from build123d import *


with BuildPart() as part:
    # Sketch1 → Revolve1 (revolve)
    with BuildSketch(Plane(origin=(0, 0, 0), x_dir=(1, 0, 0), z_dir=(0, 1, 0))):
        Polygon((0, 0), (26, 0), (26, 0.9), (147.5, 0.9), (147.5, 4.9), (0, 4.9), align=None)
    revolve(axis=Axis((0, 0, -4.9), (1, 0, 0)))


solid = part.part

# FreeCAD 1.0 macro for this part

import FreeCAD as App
import Part
import Sketcher

V = App.Vector
Q = App.Units.Quantity


def add_polygon(sketch, points):
    """Adds a closed chain of lines whose ends are joined by coincident constraints."""
    first, n = sketch.GeometryCount, len(points)
    for a, b in zip(points, points[1:] + points[:1]):
        sketch.addGeometry(Part.LineSegment(App.Vector(*a, 0), App.Vector(*b, 0)), False)
    for i in range(n):
        sketch.addConstraint(Sketcher.Constraint("Coincident", first + i, 2, first + (i + 1) % n, 1))

doc = App.newDocument("Part")
body = doc.addObject("PartDesign::Body", "Body")

# Sketch on XZ plane
sketch1 = doc.addObject("Sketcher::SketchObject", "Sketch")
body.addObject(sketch1)
sketch1.AttachmentSupport = (doc.XZ_Plane, [""])
sketch1.MapMode = "FlatFace"
add_polygon(sketch1, [(0, 0), (26, 0), (26, -0.9), (147.5, -0.9), (147.5, -4.9), (0, -4.9)])  # lines 0-5
sketch1.addGeometry(Part.LineSegment(V(0, -4.9, 0), V(147.5, -4.9, 0)), True)  # axis
sketch1.addConstraint([
    Sketcher.Constraint("Horizontal", 0),
    Sketcher.Constraint("Vertical", 1),
    Sketcher.Constraint("Horizontal", 2),
    Sketcher.Constraint("Vertical", 3),
    Sketcher.Constraint("Horizontal", 4),
    Sketcher.Constraint("Vertical", 5),
    Sketcher.Constraint("Horizontal", 6),
    Sketcher.Constraint("Coincident", 5, 2, -1, 1),
    Sketcher.Constraint("Coincident", 6, 1, 4, 2),
    Sketcher.Constraint("Vertical", 2, 2, 6, 2),
    Sketcher.Constraint("DistanceX", 0, 1, 0, 2, Q("26 mm")),
    Sketcher.Constraint("DistanceY", 3, 2, 3, 1, Q("4 mm")),
    Sketcher.Constraint("DistanceX", 2, 1, 2, 2, Q("121.5 mm")),
    Sketcher.Constraint("DistanceY", 1, 2, 1, 1, Q("0.9 mm")),
])
revolution = doc.addObject("PartDesign::Revolution", "Revolution")
body.addObject(revolution)
revolution.Profile = sketch1
revolution.ReferenceAxis = (sketch1, ["Axis0"])
revolution.Angle = 360

doc.recompute()
